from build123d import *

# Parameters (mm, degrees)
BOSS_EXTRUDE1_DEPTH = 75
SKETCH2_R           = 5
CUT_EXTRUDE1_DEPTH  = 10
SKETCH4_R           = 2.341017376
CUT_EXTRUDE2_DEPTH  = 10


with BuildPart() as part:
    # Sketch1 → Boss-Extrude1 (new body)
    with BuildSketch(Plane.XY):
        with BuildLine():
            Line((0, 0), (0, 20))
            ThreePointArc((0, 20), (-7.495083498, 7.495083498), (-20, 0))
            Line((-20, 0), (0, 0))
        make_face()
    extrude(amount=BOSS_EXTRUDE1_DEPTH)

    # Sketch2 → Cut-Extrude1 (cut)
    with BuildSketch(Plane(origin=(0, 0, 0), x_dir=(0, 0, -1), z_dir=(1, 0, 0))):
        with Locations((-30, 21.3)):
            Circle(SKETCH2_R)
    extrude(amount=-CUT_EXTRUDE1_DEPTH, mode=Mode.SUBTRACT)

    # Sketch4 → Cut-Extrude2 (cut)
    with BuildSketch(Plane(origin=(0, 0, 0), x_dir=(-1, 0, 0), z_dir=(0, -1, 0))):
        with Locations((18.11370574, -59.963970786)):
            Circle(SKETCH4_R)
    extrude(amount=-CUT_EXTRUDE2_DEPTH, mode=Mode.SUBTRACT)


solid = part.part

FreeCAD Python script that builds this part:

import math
import FreeCAD as App
import Part
import Sketcher
from FreeCAD import Vector

doc = App.newDocument("Part")
body = doc.addObject("PartDesign::Body", "Body")

# Sketch on XY plane
sketch1 = body.newObject("Sketcher::SketchObject", "Sketch")
sketch1.AttachmentSupport = (doc.getObject("XY_Plane"), [""])
sketch1.MapMode = "FlatFace"
sketch1.addGeometry(Part.LineSegment(Vector(0, 0, 0), Vector(0, 20, 0)), False)
sketch1.addGeometry(Part.ArcOfCircle(Part.Circle(Vector(-28.708287, 28.708287, 0), Vector(0, 0, 1), 30), math.radians(-73.125506), math.radians(-16.874494)), False)
sketch1.addGeometry(Part.LineSegment(Vector(-20, 0, 0), Vector(0, 0, 0)), False)
sketch1.addConstraint(Sketcher.Constraint("Coincident", 0, 2, 1, 2))
sketch1.addConstraint(Sketcher.Constraint("Coincident", 1, 1, 2, 1))
sketch1.addConstraint(Sketcher.Constraint("Coincident", 2, 2, 0, 1))
sketch1.addConstraint(Sketcher.Constraint("Vertical", 0))
sketch1.addConstraint(Sketcher.Constraint("Horizontal", 2))
sketch1.addConstraint(Sketcher.Constraint("Coincident", 2, 2, -1, 1))
sketch1.addConstraint(Sketcher.Constraint("Equal", 2, 0))
sketch1.addConstraint(Sketcher.Constraint("Radius", 1, 30.0))
sketch1.addConstraint(Sketcher.Constraint("DistanceX", 2, 1, 2, 2, 20.0))
pad1 = body.newObject("PartDesign::Pad", "Pad")
pad1.Profile = sketch1
pad1.Length = 75

# Sketch on YZ plane
sketch2 = body.newObject("Sketcher::SketchObject", "Sketch001")
sketch2.AttachmentSupport = (doc.getObject("YZ_Plane"), [""])
sketch2.MapMode = "FlatFace"
sketch2.addGeometry(Part.Circle(Vector(21.3, 30, 0), Vector(0, 0, 1), 5), False)
sketch2.addConstraint(Sketcher.Constraint("Diameter", 0, 10.0))
sketch2.addConstraint(Sketcher.Constraint("DistanceY", -1, 1, 0, 3, 30.0))
sketch2.addConstraint(Sketcher.Constraint("DistanceX", -1, 1, 0, 3, 21.3))
pocket1 = body.newObject("PartDesign::Pocket", "Pocket")
pocket1.Profile = sketch2
pocket1.Length = 10

# Sketch on XZ plane
sketch3 = body.newObject("Sketcher::SketchObject", "Sketch002")
sketch3.AttachmentSupport = (doc.getObject("XZ_Plane"), [""])
sketch3.MapMode = "FlatFace"
sketch3.addGeometry(Part.Circle(Vector(-18.113706, 59.963971, 0), Vector(0, 0, 1), 2.341017), False)
sketch3.addConstraint(Sketcher.Constraint("Diameter", 0, 4.682035))
sketch3.addConstraint(Sketcher.Constraint("DistanceY", -1, 1, 0, 3, 59.963971))
sketch3.addConstraint(Sketcher.Constraint("DistanceX", 0, 3, -1, 1, 18.113706))
pocket2 = body.newObject("PartDesign::Pocket", "Pocket001")
pocket2.Profile = sketch3
pocket2.Length = 10

doc.recompute()
